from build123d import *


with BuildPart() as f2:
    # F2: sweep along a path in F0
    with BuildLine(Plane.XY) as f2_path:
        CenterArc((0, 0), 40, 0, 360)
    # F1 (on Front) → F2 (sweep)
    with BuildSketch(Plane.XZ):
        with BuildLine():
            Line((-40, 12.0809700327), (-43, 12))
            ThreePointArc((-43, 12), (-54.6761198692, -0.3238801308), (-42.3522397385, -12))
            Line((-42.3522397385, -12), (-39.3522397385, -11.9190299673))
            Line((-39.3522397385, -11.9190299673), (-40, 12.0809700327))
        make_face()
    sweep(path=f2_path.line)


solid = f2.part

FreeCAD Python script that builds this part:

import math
import FreeCAD as App
import Part
import Sketcher
from FreeCAD import Vector
Q = App.Units.Quantity

doc = App.newDocument("Part")
params = doc.addObject("Spreadsheet::Sheet", "Params")
for row, (alias, value) in enumerate([
    ("sketch2_diameter", "80 mm"),
], start=1):
    params.set(f"A{row}", alias)
    params.set(f"B{row}", "=" + value)
    params.setAlias(f"B{row}", alias)

body = doc.addObject("PartDesign::Body", "Body")

sketch1 = doc.addObject("Sketcher::SketchObject", "Sketch")
body.addObject(sketch1)
sketch1.AttachmentSupport = (doc.XZ_Plane, [""])
sketch1.MapMode = "FlatFace"
sketch1.addGeometry([
    Part.LineSegment(Vector(-40, 12.1, 0), Vector(-43, 12, 0)),
    Part.ArcOfCircle(Part.Circle(Vector(-42.7, 0, 0), Vector(0, 0, 1), 12), math.radians(92), math.radians(272)),
    Part.LineSegment(Vector(-42.4, -12, 0), Vector(-39.4, -11.9, 0)),
    Part.LineSegment(Vector(-39.4, -11.9, 0), Vector(-40, 12.1, 0)),
], False)
sketch1.addConstraint([
    Sketcher.Constraint("Tangent", 0, 2, 1, 1),
    Sketcher.Constraint("Tangent", 1, 2, 2, 1),
    Sketcher.Constraint("Coincident", 2, 2, 3, 1),
    Sketcher.Constraint("Coincident", 3, 2, 0, 1),
    Sketcher.Constraint("PointOnObject", 1, 3, -1),
    Sketcher.Constraint("Parallel", 0, 2),
    Sketcher.Constraint("Perpendicular", 2, 3),
    Sketcher.Constraint("DistanceX", 0, 2, -1, 1, Q("43 mm")),
    Sketcher.Constraint("DistanceY", -1, 1, 0, 2, Q("12 mm")),
    Sketcher.Constraint("DistanceX", 3, 2, -1, 1, Q("40 mm")),
    Sketcher.Constraint("Radius", 1, Q("12.00437 mm")),
])

sketch2 = doc.addObject("Sketcher::SketchObject", "Sketch001")
body.addObject(sketch2)
sketch2.AttachmentSupport = (doc.XY_Plane, [""])
sketch2.MapMode = "FlatFace"
sketch2.addGeometry(Part.Circle(Vector(0, 0, 0), Vector(0, 0, 1), 40), False)
sketch2.addConstraint([
    Sketcher.Constraint("Coincident", 0, 3, -1, 1),
    Sketcher.Constraint("Diameter", 0, Q("80 mm")),
])
sketch2.setExpression("Constraints[1]", "Params.sketch2_diameter")
doc.recompute()

additivepipe = doc.addObject("PartDesign::AdditivePipe", "AdditivePipe")
body.addObject(additivepipe)
additivepipe.Profile = sketch1
additivepipe.Spine = (sketch2, ["Edge1"])

doc.recompute()
